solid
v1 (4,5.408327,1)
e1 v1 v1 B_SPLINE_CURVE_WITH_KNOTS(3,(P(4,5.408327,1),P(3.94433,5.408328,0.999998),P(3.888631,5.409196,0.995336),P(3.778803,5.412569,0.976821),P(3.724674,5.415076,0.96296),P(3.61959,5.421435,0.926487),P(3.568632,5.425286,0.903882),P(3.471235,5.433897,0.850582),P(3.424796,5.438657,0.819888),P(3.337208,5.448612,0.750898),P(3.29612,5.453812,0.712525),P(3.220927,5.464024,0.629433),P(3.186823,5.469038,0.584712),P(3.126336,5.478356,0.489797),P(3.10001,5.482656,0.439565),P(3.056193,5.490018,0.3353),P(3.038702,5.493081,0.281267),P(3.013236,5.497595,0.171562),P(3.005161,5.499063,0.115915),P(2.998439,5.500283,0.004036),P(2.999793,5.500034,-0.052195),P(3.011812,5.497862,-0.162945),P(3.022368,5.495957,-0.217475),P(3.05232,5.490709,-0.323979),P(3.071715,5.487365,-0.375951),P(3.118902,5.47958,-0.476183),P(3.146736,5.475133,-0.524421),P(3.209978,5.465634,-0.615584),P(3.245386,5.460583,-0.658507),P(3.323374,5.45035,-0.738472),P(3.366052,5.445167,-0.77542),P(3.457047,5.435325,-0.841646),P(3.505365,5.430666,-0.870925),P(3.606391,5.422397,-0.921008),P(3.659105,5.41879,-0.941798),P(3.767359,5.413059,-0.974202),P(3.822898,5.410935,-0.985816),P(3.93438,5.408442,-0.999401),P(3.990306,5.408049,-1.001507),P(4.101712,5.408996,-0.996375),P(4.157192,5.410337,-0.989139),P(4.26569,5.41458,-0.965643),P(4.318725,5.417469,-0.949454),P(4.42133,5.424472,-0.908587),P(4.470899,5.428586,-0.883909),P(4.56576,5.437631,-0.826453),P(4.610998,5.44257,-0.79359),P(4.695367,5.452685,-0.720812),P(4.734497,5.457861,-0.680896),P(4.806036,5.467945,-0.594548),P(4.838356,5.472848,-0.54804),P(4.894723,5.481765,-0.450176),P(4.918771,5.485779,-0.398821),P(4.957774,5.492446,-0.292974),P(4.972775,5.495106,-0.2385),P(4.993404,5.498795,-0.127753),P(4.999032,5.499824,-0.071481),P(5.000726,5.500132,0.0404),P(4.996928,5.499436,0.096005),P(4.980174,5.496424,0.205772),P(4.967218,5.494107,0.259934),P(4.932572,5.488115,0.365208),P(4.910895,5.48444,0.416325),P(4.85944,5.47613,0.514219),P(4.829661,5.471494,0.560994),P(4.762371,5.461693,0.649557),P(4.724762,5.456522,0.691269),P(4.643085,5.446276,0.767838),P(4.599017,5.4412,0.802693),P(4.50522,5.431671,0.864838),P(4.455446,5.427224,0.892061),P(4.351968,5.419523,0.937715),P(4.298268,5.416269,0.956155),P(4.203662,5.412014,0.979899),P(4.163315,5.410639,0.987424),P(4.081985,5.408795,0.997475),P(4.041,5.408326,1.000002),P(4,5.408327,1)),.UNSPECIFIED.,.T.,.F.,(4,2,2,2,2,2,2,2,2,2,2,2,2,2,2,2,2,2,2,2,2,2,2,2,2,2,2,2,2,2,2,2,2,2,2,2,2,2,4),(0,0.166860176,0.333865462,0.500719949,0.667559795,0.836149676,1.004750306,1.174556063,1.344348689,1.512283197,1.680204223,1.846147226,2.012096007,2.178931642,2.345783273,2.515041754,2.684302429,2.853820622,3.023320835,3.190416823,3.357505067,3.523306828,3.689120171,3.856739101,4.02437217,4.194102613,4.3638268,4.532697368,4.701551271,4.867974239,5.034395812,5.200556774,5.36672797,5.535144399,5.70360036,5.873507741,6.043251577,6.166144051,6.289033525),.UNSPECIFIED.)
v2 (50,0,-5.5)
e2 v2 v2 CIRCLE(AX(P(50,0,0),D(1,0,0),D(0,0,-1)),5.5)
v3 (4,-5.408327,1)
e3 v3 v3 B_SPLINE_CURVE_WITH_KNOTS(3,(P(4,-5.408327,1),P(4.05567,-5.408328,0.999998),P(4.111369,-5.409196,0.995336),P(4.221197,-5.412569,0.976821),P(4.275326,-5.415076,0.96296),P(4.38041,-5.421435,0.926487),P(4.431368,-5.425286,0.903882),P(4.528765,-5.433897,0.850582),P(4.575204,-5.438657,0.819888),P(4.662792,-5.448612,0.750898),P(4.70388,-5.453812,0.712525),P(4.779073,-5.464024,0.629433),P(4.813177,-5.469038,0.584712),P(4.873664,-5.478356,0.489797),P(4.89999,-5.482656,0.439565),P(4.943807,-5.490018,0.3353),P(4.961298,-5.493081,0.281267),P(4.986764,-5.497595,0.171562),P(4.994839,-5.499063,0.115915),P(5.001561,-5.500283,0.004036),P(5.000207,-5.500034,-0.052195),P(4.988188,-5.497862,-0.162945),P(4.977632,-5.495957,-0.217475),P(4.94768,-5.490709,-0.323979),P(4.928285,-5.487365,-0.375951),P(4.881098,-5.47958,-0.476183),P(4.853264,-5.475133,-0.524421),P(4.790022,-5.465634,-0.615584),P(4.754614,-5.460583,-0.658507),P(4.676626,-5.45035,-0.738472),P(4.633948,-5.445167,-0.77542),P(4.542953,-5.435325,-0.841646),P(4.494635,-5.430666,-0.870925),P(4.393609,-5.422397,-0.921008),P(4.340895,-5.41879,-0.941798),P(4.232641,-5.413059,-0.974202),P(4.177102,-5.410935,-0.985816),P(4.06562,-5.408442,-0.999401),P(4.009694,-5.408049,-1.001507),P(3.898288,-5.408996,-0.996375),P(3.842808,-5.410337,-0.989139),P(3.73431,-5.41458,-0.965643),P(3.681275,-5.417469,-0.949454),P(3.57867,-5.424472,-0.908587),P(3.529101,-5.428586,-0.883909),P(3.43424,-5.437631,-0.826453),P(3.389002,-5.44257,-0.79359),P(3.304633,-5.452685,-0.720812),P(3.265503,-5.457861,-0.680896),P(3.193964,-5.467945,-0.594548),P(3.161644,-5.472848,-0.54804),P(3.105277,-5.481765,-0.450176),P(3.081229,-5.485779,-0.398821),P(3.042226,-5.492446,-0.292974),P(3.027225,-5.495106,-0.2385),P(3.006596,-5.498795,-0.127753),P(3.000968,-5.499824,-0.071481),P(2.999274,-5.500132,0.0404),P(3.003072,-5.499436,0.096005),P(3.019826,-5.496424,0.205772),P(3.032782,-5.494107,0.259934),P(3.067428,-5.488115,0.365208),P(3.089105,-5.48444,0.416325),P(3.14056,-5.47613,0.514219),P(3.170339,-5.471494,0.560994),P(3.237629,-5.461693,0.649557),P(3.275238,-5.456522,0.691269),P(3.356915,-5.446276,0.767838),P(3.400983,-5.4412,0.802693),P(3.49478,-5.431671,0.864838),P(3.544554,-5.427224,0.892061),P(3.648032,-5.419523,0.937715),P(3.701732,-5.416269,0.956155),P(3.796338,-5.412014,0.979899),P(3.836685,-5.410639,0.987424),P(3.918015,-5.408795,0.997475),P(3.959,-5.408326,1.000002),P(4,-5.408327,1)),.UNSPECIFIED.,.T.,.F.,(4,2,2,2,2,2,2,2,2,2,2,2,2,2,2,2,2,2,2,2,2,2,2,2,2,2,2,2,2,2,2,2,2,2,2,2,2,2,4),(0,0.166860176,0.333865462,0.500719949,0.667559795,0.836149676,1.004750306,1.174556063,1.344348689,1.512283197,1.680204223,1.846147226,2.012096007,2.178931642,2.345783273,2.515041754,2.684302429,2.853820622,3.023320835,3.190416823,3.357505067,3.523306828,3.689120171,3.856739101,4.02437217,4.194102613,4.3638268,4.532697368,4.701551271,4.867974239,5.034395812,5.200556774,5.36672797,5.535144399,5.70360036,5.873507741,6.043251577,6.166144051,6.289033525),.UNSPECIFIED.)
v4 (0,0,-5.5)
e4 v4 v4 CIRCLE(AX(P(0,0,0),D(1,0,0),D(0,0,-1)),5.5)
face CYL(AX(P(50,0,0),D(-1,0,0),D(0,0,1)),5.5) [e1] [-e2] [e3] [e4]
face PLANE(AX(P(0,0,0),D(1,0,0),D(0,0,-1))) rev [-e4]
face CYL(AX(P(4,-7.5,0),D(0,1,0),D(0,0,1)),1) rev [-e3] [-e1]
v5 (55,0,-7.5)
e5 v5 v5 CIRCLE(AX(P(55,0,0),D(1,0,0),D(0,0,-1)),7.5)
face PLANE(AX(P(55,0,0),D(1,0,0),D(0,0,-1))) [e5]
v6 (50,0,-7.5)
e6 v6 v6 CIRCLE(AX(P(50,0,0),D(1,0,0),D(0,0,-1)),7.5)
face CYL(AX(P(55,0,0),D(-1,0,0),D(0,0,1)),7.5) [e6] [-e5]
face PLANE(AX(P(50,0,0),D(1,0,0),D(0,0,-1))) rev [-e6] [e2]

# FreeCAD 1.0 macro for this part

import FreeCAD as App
import Part
import Sketcher
from FreeCAD import Vector

doc = App.newDocument("Part")
body = doc.addObject("PartDesign::Body", "Body")

# Sketch on YZ plane
sketch1 = doc.addObject("Sketcher::SketchObject", "Sketch")
body.addObject(sketch1)
sketch1.AttachmentSupport = (doc.YZ_Plane, [""])
sketch1.MapMode = "FlatFace"
sketch1.addGeometry(Part.Circle(Vector(0, 0, 0), Vector(0, 0, 1), 6), False)
sketch1.addConstraint(Sketcher.Constraint("Coincident", 0, 3, -1, 1))
sketch1.addConstraint(Sketcher.Constraint("Diameter", 0, 11.0))
pad1 = doc.addObject("PartDesign::Pad", "Pad")
body.addObject(pad1)
pad1.Profile = sketch1
pad1.Length = 50

# Sketch on YZ plane
sketch2 = doc.addObject("Sketcher::SketchObject", "Sketch001")
body.addObject(sketch2)
sketch2.AttachmentSupport = (doc.YZ_Plane, [""])
sketch2.MapMode = "FlatFace"
sketch2.AttachmentOffset = App.Placement(Vector(0, 0, 50), App.Rotation())
sketch2.addGeometry(Part.Circle(Vector(0, 0, 0), Vector(0, 0, 1), 8), False)
sketch2.addConstraint(Sketcher.Constraint("Coincident", 0, 3, -1, 1))
sketch2.addConstraint(Sketcher.Constraint("Diameter", 0, 15.0))
pad2 = doc.addObject("PartDesign::Pad", "Pad001")
body.addObject(pad2)
pad2.Profile = sketch2
pad2.Length = 5

# Sketch on XZ plane
sketch3 = doc.addObject("Sketcher::SketchObject", "Sketch002")
body.addObject(sketch3)
sketch3.AttachmentSupport = (doc.XZ_Plane, [""])
sketch3.MapMode = "FlatFace"
sketch3.addGeometry(Part.Circle(Vector(4, 0, 0), Vector(0, 0, 1), 1), False)
sketch3.addConstraint(Sketcher.Constraint("PointOnObject", 0, 3, -1))
sketch3.addConstraint(Sketcher.Constraint("Diameter", 0, 2.0))
sketch3.addConstraint(Sketcher.Constraint("DistanceX", -1, 1, 0, 3, 4.0))
pocket1 = doc.addObject("PartDesign::Pocket", "Pocket")
body.addObject(pocket1)
pocket1.Profile = sketch3
pocket1.Type = "ThroughAll"
pocket1.Midplane = True

doc.recompute()
